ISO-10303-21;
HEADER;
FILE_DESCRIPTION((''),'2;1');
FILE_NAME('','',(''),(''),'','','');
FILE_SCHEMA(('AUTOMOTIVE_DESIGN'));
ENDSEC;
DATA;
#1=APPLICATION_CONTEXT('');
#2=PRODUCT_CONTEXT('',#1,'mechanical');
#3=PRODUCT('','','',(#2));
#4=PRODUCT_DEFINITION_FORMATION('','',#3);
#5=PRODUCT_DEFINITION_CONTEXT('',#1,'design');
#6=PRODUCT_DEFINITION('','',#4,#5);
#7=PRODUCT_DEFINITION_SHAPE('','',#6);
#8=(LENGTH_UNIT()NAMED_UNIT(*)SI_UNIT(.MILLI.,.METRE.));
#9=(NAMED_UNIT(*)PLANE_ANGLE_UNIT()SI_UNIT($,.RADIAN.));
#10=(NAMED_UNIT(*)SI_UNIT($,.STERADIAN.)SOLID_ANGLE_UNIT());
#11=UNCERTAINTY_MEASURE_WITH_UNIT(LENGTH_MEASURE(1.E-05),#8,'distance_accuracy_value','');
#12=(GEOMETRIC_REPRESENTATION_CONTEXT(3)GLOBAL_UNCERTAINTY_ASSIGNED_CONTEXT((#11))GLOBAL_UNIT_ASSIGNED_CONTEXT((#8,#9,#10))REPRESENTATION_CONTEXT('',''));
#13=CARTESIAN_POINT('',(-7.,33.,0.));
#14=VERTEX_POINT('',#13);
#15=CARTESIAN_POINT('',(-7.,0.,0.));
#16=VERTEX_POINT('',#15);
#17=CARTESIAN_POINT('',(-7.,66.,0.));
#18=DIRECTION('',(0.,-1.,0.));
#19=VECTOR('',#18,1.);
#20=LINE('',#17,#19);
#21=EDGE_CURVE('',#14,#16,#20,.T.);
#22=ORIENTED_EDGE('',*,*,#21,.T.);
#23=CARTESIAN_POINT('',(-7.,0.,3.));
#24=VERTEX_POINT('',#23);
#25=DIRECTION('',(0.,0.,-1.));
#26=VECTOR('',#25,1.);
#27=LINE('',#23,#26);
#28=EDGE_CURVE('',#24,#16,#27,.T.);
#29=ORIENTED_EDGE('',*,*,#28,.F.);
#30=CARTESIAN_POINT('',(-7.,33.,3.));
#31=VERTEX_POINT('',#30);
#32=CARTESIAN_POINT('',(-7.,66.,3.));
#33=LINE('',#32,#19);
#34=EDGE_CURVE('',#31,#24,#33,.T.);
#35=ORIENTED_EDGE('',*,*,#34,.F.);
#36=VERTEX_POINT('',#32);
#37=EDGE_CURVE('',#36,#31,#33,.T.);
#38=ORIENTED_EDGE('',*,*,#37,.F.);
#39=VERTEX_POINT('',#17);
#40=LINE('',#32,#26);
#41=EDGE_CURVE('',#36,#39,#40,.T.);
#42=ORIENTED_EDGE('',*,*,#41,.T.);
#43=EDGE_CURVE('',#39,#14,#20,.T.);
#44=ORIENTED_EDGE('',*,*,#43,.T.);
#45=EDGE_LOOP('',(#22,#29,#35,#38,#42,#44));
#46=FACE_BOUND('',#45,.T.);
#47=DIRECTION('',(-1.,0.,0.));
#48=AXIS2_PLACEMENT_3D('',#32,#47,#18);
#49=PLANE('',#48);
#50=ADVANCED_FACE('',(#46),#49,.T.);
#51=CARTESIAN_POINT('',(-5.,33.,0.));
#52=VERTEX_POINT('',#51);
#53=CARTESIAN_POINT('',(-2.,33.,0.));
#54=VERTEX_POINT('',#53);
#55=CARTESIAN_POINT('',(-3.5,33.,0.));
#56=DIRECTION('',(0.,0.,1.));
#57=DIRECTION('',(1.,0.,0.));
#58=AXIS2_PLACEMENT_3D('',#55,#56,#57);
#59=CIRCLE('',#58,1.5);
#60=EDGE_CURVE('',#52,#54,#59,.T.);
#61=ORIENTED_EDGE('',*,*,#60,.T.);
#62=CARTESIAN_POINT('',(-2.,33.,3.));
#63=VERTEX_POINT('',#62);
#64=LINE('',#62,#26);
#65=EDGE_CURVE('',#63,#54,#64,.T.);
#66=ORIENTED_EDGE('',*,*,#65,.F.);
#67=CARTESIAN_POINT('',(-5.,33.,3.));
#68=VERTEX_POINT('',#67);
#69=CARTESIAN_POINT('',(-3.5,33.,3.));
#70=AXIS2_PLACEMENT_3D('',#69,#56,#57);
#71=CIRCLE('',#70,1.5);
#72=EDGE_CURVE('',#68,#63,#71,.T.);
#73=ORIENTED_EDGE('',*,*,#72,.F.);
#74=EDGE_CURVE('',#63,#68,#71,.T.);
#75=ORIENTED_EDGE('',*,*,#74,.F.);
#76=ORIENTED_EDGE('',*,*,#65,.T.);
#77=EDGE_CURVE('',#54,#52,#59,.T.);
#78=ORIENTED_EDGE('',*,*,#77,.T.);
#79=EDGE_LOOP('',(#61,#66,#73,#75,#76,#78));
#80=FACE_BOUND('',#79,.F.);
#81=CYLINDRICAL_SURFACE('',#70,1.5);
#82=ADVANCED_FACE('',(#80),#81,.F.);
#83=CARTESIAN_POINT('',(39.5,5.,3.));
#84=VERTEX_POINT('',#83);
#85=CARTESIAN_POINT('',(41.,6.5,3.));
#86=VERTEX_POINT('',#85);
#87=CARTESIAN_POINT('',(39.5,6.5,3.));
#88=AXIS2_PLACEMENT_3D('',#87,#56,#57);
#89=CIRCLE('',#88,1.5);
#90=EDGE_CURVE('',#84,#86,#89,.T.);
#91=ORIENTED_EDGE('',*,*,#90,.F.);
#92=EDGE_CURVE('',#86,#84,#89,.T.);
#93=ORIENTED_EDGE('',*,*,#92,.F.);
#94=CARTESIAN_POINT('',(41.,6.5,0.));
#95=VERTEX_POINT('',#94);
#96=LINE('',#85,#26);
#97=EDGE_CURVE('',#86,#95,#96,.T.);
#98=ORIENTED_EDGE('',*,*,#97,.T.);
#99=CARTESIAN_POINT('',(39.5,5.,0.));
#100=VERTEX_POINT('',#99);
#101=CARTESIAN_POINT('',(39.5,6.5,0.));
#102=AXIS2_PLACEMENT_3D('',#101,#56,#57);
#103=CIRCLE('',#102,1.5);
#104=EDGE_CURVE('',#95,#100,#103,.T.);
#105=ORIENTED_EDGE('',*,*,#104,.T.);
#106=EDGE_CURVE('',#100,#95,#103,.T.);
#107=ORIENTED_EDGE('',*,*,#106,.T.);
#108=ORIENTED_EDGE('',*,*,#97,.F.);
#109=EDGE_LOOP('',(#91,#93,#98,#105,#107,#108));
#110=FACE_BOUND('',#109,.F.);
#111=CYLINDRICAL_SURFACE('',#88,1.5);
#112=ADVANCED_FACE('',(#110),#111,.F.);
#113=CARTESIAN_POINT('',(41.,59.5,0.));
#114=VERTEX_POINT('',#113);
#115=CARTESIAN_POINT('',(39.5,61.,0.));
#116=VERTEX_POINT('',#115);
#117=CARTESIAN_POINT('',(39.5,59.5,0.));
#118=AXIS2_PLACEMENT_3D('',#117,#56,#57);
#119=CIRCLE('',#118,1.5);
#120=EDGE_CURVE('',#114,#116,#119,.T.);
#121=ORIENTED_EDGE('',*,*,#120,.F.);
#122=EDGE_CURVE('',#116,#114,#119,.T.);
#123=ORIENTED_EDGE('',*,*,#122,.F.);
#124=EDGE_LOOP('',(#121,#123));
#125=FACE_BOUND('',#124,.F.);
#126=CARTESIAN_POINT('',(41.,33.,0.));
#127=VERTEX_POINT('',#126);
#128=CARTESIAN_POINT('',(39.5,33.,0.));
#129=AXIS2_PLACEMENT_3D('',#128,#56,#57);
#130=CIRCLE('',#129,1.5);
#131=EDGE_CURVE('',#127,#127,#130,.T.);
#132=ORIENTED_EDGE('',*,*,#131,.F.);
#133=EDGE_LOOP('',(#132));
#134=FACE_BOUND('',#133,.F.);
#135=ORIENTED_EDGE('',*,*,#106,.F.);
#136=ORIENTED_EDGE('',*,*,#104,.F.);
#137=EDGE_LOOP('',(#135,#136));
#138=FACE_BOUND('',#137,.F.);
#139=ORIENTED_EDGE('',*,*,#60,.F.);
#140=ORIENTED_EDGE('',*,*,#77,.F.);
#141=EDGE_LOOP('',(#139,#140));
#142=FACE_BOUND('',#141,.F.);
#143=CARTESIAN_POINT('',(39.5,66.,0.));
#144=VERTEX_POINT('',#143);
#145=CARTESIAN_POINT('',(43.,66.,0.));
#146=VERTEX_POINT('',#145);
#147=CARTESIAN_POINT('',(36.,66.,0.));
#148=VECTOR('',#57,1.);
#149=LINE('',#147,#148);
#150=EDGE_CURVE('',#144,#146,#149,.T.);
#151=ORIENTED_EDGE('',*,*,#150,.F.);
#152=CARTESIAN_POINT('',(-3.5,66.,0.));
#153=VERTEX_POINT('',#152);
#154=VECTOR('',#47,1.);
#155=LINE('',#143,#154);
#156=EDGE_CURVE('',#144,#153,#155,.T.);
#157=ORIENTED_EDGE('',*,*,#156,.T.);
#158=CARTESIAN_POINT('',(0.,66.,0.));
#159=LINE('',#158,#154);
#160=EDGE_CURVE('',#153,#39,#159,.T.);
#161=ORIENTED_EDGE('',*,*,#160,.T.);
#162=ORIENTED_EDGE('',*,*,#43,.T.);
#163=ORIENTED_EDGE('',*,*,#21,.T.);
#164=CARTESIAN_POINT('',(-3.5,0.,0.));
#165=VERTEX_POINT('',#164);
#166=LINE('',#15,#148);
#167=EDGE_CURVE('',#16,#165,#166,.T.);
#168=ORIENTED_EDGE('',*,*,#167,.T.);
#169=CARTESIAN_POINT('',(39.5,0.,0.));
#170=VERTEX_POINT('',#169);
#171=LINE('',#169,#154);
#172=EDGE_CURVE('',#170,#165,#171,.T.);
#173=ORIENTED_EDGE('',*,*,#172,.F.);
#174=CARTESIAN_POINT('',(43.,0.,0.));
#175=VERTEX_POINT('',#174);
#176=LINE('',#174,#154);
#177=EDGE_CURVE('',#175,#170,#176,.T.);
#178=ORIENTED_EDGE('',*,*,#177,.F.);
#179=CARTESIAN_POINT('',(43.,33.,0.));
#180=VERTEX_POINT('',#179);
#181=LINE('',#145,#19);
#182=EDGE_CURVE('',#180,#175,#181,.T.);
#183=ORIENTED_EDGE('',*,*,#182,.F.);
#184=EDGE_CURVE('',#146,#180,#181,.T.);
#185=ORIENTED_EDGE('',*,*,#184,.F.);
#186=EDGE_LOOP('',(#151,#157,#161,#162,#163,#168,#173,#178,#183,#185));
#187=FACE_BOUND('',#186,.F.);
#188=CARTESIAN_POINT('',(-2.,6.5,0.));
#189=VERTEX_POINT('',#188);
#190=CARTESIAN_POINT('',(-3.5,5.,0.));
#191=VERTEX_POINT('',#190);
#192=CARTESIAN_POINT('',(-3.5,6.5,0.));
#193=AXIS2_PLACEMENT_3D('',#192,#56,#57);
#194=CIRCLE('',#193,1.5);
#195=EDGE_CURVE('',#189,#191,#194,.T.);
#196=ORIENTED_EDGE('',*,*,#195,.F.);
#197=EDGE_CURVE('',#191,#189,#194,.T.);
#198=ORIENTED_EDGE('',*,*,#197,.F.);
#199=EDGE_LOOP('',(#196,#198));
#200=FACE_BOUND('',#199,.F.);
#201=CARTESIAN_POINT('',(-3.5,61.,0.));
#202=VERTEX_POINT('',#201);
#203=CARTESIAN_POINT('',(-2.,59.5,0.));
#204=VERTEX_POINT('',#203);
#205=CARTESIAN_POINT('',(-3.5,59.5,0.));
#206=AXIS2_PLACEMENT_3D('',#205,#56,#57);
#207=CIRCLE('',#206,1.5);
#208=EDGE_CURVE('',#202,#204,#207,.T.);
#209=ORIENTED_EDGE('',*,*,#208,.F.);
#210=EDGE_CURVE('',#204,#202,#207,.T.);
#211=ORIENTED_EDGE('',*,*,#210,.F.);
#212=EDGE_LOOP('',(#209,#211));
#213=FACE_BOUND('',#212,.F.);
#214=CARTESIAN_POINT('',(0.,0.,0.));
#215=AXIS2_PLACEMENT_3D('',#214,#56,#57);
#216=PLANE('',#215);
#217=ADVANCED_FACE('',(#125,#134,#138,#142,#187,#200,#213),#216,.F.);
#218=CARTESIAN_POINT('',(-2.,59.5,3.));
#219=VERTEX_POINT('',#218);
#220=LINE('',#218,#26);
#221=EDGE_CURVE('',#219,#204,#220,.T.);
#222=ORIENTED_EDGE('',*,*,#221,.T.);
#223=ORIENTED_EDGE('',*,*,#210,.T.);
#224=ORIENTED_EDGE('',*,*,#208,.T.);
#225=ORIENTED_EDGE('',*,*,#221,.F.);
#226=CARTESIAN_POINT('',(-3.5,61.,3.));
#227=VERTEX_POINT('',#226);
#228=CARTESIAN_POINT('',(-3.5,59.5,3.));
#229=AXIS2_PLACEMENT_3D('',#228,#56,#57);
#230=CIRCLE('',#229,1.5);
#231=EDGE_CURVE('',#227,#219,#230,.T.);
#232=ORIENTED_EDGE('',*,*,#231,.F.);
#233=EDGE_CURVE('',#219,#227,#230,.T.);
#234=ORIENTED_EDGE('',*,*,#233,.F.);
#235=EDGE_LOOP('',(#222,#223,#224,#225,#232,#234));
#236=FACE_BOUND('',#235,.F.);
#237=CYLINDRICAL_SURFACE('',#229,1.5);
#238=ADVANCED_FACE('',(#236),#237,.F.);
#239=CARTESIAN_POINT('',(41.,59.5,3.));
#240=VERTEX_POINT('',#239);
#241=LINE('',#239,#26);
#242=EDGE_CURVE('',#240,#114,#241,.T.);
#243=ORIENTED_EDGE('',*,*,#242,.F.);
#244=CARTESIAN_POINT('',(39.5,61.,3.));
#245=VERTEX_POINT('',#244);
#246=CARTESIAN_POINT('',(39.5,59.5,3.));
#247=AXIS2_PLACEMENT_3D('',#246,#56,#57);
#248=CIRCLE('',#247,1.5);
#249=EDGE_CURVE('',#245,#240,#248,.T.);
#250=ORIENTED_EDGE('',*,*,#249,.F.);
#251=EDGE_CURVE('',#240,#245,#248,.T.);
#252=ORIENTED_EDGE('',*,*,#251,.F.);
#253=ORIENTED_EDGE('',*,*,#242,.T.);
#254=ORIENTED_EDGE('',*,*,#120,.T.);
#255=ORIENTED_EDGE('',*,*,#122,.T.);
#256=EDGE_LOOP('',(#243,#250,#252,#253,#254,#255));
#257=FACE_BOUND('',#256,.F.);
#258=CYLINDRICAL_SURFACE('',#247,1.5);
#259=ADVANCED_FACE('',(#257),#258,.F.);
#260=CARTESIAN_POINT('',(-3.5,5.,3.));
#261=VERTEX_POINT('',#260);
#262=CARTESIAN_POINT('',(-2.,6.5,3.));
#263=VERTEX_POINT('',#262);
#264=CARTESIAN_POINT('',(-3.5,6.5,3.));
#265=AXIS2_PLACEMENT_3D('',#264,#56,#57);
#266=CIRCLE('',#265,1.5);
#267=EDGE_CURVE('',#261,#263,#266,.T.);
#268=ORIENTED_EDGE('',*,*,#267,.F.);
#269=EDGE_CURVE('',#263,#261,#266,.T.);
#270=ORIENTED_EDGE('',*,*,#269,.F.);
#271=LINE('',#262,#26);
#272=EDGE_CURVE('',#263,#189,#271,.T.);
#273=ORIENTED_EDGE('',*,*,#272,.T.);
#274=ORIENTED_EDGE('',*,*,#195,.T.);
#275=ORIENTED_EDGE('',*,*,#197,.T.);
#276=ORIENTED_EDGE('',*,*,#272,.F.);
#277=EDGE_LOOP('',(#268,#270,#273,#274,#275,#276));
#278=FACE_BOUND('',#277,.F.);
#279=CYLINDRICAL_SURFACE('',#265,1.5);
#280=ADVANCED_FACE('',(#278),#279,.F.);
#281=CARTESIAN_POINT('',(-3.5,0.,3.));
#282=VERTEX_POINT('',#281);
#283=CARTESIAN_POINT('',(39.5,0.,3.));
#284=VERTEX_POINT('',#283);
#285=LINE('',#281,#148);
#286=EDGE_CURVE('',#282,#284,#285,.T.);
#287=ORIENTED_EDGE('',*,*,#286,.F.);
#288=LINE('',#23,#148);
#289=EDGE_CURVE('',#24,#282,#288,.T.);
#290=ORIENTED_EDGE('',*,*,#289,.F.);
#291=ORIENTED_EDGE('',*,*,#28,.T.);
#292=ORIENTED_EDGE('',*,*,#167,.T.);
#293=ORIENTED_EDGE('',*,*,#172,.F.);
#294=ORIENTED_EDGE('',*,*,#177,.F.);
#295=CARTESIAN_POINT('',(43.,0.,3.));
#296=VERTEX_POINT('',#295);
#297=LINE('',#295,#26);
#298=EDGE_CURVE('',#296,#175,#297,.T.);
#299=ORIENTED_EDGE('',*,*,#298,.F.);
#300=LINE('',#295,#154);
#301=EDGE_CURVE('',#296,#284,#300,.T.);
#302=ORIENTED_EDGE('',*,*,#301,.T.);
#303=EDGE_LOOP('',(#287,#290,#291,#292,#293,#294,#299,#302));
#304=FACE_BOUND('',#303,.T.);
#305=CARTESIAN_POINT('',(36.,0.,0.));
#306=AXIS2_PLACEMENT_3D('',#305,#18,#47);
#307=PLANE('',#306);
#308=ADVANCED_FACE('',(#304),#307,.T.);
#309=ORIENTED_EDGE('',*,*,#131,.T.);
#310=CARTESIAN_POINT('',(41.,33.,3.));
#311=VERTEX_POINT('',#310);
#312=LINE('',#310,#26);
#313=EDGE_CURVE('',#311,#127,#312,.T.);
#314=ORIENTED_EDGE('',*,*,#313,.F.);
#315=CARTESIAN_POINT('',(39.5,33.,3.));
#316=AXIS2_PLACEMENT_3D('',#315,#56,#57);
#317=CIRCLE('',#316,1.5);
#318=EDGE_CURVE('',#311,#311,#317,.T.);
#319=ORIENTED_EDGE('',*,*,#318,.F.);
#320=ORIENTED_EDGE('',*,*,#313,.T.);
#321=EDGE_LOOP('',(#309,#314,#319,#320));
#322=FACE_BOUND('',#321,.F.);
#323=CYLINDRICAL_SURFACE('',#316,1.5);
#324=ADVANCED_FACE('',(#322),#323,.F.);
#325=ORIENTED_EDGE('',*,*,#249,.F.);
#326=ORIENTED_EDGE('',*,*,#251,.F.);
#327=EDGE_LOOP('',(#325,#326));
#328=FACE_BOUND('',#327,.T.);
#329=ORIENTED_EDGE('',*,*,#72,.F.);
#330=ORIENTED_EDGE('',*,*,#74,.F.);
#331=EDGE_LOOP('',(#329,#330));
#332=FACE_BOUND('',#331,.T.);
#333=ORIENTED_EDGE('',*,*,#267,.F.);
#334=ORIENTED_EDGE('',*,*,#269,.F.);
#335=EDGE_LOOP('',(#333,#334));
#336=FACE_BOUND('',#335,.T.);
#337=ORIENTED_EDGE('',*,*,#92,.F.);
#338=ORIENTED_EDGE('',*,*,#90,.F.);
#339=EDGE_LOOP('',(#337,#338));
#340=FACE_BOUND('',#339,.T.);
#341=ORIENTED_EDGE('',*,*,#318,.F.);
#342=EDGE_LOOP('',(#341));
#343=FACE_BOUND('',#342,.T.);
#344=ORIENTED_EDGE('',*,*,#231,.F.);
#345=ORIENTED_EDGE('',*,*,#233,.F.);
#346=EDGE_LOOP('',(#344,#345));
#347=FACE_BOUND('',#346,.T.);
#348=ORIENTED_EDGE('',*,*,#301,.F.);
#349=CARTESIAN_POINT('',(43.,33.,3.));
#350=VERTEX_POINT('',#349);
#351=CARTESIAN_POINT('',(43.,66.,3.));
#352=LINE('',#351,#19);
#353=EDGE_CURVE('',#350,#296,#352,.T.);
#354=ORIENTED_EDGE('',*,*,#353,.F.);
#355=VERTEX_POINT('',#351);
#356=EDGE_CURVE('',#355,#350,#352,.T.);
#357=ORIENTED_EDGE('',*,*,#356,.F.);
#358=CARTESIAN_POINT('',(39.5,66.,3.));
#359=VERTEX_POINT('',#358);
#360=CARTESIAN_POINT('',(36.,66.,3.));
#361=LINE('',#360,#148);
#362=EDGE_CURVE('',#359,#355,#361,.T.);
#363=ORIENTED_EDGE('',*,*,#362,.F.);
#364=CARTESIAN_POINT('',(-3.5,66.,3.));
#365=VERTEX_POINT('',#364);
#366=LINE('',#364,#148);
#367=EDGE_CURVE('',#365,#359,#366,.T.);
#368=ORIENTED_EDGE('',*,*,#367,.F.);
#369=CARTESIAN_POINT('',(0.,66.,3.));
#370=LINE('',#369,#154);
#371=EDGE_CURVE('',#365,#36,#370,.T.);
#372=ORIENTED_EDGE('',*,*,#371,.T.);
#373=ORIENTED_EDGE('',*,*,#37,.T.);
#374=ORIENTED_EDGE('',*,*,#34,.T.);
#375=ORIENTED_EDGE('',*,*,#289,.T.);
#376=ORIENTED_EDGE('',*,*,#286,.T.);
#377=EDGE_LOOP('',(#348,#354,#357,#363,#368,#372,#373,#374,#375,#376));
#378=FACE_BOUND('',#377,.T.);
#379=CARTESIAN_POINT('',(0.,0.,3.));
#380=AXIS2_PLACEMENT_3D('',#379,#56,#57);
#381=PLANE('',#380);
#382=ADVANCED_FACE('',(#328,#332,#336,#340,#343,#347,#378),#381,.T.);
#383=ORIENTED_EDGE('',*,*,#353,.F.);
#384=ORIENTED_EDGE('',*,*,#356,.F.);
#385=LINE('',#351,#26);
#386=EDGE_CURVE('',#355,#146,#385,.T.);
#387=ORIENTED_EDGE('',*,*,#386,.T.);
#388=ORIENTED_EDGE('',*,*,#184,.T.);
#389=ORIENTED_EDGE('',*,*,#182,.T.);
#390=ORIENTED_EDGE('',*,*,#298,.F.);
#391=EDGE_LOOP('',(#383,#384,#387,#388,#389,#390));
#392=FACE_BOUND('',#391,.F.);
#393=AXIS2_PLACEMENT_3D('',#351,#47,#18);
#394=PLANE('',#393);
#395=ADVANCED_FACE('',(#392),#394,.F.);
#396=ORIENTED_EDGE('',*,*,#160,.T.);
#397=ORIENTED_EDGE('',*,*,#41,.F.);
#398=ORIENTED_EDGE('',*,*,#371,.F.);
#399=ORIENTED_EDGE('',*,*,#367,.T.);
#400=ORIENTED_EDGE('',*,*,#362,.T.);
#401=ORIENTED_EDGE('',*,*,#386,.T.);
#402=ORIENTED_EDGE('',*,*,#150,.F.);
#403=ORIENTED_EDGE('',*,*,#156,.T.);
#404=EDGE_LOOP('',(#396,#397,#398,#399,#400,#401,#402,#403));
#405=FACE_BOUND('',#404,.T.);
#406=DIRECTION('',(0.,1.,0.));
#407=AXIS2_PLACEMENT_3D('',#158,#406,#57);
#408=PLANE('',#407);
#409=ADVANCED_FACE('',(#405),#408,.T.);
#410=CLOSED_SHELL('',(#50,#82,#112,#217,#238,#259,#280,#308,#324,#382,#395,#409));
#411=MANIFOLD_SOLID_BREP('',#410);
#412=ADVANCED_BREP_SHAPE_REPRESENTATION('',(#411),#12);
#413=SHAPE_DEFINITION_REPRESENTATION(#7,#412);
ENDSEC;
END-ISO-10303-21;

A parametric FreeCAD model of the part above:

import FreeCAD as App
import Part
import Sketcher

V = App.Vector

doc = App.newDocument("Part")
body = doc.addObject("PartDesign::Body", "Body")

# Sketch on XY plane
sketch1 = doc.addObject("Sketcher::SketchObject", "Sketch")
body.addObject(sketch1)
sketch1.AttachmentSupport = (doc.XY_Plane, [""])
sketch1.MapMode = "FlatFace"
sketch1.addGeometry([
    Part.LineSegment(V(0, 66, 0), V(0, 0, 0)),
    Part.LineSegment(V(0, 0, 0), V(36, 0, 0)),
    Part.LineSegment(V(36, 0, 0), V(36, 66, 0)),
    Part.LineSegment(V(36, 66, 0), V(0, 66, 0)),
], False)
sketch1.addConstraint([
    Sketcher.Constraint("Coincident", 0, 2, 1, 1),
    Sketcher.Constraint("Coincident", 1, 2, 2, 1),
    Sketcher.Constraint("Coincident", 2, 2, 3, 1),
    Sketcher.Constraint("Coincident", 3, 2, 0, 1),
    Sketcher.Constraint("Vertical", 0),
    Sketcher.Constraint("Horizontal", 1),
    Sketcher.Constraint("Vertical", 2),
    Sketcher.Constraint("Horizontal", 3),
    Sketcher.Constraint("Coincident", 0, 2, -1, 1),
    Sketcher.Constraint("DistanceX", 1, 1, 1, 2, 36.0),
    Sketcher.Constraint("DistanceY", 0, 2, 0, 1, 66.0),
])
pad1 = doc.addObject("PartDesign::Pad", "Pad")
body.addObject(pad1)
pad1.Profile = sketch1
pad1.Length = 3

# Sketch on XY plane
sketch2 = doc.addObject("Sketcher::SketchObject", "Sketch001")
body.addObject(sketch2)
sketch2.AttachmentSupport = (doc.XY_Plane, [""])
sketch2.MapMode = "FlatFace"
sketch2.AttachmentOffset = App.Placement(V(0, 0, 3), App.Rotation())
sketch2.addGeometry([
    Part.LineSegment(V(39.5, 66, 0), V(36, 66, 0)),  # 0
    Part.LineSegment(V(36, 66, 0), V(36, 0, 0)),  # 1
    Part.LineSegment(V(36, 0, 0), V(39.5, 0, 0)),  # 2
    Part.LineSegment(V(39.5, 0, 0), V(43, 0, 0)),  # 3
    Part.LineSegment(V(43, 0, 0), V(43, 33, 0)),  # 4
    Part.LineSegment(V(43, 33, 0), V(43, 66, 0)),  # 5
    Part.LineSegment(V(43, 66, 0), V(39.5, 66, 0)),  # 6
    Part.Circle(V(39.5, 6.5, 0), V(0, 0, 1), 1.5),  # 7
    Part.Circle(V(39.5, 33, 0), V(0, 0, 1), 1.5),  # 8
    Part.Circle(V(39.5, 59.5, 0), V(0, 0, 1), 1.5),  # 9
    Part.LineSegment(V(0, 0, 0), V(0, 66, 0)),  # 10
    Part.LineSegment(V(0, 66, 0), V(-3.5, 66, 0)),  # 11
    Part.LineSegment(V(-3.5, 66, 0), V(-7, 66, 0)),  # 12
    Part.LineSegment(V(-7, 66, 0), V(-7, 33, 0)),  # 13
    Part.LineSegment(V(-7, 33, 0), V(-7, 0, 0)),  # 14
    Part.LineSegment(V(-7, 0, 0), V(-3.5, 0, 0)),  # 15
    Part.LineSegment(V(-3.5, 0, 0), V(0, 0, 0)),  # 16
    Part.Circle(V(-3.5, 6.5, 0), V(0, 0, 1), 1.5),  # 17
    Part.Circle(V(-3.5, 33, 0), V(0, 0, 1), 1.5),  # 18
    Part.Circle(V(-3.5, 59.5, 0), V(0, 0, 1), 1.5),  # 19
], False)
sketch2.addConstraint([
    Sketcher.Constraint("Coincident", 0, 2, 1, 1),
    Sketcher.Constraint("Coincident", 1, 2, 2, 1),
    Sketcher.Constraint("Coincident", 2, 2, 3, 1),
    Sketcher.Constraint("Coincident", 3, 2, 4, 1),
    Sketcher.Constraint("Coincident", 4, 2, 5, 1),
    Sketcher.Constraint("Coincident", 5, 2, 6, 1),
    Sketcher.Constraint("Coincident", 6, 2, 0, 1),
    Sketcher.Constraint("Coincident", 10, 2, 11, 1),
    Sketcher.Constraint("Coincident", 11, 2, 12, 1),
    Sketcher.Constraint("Coincident", 12, 2, 13, 1),
    Sketcher.Constraint("Coincident", 13, 2, 14, 1),
    Sketcher.Constraint("Coincident", 14, 2, 15, 1),
    Sketcher.Constraint("Coincident", 15, 2, 16, 1),
    Sketcher.Constraint("Coincident", 16, 2, 10, 1),
    Sketcher.Constraint("Horizontal", 0),
    Sketcher.Constraint("Vertical", 1),
    Sketcher.Constraint("Horizontal", 2),
    Sketcher.Constraint("Horizontal", 3),
    Sketcher.Constraint("Vertical", 4),
    Sketcher.Constraint("Vertical", 5),
    Sketcher.Constraint("Horizontal", 6),
    Sketcher.Constraint("Vertical", 10),
    Sketcher.Constraint("Horizontal", 11),
    Sketcher.Constraint("Horizontal", 12),
    Sketcher.Constraint("Vertical", 13),
    Sketcher.Constraint("Vertical", 14),
    Sketcher.Constraint("Horizontal", 15),
    Sketcher.Constraint("Horizontal", 16),
    Sketcher.Constraint("Coincident", 16, 2, -1, 1),
    Sketcher.Constraint("Equal", 7, 8),
    Sketcher.Constraint("Equal", 8, 9),
    Sketcher.Constraint("Equal", 9, 17),
    Sketcher.Constraint("Equal", 17, 18),
    Sketcher.Constraint("Equal", 18, 19),
    Sketcher.Constraint("PointOnObject", 1, 2, -1),
    Sketcher.Constraint("Horizontal", 7, 3, 17, 3),
    Sketcher.Constraint("Horizontal", 8, 3, 18, 3),
    Sketcher.Constraint("Horizontal", 9, 3, 19, 3),
    Sketcher.Constraint("Horizontal", 18, 3, 4, 2),
    Sketcher.Constraint("Horizontal", 6, 2, 10, 2),
    Sketcher.Constraint("Horizontal", 4, 2, 13, 2),
    Sketcher.Constraint("Vertical", 7, 3, 8, 3),
    Sketcher.Constraint("Vertical", 8, 3, 9, 3),
    Sketcher.Constraint("Vertical", 17, 3, 18, 3),
    Sketcher.Constraint("Vertical", 18, 3, 19, 3),
    Sketcher.Constraint("Vertical", 9, 3, 2, 2),
    Sketcher.Constraint("Vertical", 2, 2, 6, 2),
    Sketcher.Constraint("Vertical", 19, 3, 11, 2),
    Sketcher.Constraint("Vertical", 11, 2, 15, 2),
    Sketcher.Constraint("Equal", 2, 3),
    Sketcher.Constraint("Equal", 6, 11),
    Sketcher.Constraint("Equal", 11, 12),
    Sketcher.Constraint("Equal", 4, 5),
    Sketcher.Constraint("Diameter", 7, 3.0),
    Sketcher.Constraint("DistanceX", 12, 2, -1, 1, 7.0),
    Sketcher.Constraint("DistanceY", -1, 1, 7, 3, 6.5),
    Sketcher.Constraint("DistanceY", 9, 3, 0, 2, 6.5),
    Sketcher.Constraint("DistanceY", 1, 2, 1, 1, 66.0),
    Sketcher.Constraint("DistanceX", -1, 1, 0, 2, 36.0),
])
pad2 = doc.addObject("PartDesign::Pad", "Pad001")
body.addObject(pad2)
pad2.Profile = sketch2
pad2.Length = 3
pad2.Reversed = True

doc.recompute()
